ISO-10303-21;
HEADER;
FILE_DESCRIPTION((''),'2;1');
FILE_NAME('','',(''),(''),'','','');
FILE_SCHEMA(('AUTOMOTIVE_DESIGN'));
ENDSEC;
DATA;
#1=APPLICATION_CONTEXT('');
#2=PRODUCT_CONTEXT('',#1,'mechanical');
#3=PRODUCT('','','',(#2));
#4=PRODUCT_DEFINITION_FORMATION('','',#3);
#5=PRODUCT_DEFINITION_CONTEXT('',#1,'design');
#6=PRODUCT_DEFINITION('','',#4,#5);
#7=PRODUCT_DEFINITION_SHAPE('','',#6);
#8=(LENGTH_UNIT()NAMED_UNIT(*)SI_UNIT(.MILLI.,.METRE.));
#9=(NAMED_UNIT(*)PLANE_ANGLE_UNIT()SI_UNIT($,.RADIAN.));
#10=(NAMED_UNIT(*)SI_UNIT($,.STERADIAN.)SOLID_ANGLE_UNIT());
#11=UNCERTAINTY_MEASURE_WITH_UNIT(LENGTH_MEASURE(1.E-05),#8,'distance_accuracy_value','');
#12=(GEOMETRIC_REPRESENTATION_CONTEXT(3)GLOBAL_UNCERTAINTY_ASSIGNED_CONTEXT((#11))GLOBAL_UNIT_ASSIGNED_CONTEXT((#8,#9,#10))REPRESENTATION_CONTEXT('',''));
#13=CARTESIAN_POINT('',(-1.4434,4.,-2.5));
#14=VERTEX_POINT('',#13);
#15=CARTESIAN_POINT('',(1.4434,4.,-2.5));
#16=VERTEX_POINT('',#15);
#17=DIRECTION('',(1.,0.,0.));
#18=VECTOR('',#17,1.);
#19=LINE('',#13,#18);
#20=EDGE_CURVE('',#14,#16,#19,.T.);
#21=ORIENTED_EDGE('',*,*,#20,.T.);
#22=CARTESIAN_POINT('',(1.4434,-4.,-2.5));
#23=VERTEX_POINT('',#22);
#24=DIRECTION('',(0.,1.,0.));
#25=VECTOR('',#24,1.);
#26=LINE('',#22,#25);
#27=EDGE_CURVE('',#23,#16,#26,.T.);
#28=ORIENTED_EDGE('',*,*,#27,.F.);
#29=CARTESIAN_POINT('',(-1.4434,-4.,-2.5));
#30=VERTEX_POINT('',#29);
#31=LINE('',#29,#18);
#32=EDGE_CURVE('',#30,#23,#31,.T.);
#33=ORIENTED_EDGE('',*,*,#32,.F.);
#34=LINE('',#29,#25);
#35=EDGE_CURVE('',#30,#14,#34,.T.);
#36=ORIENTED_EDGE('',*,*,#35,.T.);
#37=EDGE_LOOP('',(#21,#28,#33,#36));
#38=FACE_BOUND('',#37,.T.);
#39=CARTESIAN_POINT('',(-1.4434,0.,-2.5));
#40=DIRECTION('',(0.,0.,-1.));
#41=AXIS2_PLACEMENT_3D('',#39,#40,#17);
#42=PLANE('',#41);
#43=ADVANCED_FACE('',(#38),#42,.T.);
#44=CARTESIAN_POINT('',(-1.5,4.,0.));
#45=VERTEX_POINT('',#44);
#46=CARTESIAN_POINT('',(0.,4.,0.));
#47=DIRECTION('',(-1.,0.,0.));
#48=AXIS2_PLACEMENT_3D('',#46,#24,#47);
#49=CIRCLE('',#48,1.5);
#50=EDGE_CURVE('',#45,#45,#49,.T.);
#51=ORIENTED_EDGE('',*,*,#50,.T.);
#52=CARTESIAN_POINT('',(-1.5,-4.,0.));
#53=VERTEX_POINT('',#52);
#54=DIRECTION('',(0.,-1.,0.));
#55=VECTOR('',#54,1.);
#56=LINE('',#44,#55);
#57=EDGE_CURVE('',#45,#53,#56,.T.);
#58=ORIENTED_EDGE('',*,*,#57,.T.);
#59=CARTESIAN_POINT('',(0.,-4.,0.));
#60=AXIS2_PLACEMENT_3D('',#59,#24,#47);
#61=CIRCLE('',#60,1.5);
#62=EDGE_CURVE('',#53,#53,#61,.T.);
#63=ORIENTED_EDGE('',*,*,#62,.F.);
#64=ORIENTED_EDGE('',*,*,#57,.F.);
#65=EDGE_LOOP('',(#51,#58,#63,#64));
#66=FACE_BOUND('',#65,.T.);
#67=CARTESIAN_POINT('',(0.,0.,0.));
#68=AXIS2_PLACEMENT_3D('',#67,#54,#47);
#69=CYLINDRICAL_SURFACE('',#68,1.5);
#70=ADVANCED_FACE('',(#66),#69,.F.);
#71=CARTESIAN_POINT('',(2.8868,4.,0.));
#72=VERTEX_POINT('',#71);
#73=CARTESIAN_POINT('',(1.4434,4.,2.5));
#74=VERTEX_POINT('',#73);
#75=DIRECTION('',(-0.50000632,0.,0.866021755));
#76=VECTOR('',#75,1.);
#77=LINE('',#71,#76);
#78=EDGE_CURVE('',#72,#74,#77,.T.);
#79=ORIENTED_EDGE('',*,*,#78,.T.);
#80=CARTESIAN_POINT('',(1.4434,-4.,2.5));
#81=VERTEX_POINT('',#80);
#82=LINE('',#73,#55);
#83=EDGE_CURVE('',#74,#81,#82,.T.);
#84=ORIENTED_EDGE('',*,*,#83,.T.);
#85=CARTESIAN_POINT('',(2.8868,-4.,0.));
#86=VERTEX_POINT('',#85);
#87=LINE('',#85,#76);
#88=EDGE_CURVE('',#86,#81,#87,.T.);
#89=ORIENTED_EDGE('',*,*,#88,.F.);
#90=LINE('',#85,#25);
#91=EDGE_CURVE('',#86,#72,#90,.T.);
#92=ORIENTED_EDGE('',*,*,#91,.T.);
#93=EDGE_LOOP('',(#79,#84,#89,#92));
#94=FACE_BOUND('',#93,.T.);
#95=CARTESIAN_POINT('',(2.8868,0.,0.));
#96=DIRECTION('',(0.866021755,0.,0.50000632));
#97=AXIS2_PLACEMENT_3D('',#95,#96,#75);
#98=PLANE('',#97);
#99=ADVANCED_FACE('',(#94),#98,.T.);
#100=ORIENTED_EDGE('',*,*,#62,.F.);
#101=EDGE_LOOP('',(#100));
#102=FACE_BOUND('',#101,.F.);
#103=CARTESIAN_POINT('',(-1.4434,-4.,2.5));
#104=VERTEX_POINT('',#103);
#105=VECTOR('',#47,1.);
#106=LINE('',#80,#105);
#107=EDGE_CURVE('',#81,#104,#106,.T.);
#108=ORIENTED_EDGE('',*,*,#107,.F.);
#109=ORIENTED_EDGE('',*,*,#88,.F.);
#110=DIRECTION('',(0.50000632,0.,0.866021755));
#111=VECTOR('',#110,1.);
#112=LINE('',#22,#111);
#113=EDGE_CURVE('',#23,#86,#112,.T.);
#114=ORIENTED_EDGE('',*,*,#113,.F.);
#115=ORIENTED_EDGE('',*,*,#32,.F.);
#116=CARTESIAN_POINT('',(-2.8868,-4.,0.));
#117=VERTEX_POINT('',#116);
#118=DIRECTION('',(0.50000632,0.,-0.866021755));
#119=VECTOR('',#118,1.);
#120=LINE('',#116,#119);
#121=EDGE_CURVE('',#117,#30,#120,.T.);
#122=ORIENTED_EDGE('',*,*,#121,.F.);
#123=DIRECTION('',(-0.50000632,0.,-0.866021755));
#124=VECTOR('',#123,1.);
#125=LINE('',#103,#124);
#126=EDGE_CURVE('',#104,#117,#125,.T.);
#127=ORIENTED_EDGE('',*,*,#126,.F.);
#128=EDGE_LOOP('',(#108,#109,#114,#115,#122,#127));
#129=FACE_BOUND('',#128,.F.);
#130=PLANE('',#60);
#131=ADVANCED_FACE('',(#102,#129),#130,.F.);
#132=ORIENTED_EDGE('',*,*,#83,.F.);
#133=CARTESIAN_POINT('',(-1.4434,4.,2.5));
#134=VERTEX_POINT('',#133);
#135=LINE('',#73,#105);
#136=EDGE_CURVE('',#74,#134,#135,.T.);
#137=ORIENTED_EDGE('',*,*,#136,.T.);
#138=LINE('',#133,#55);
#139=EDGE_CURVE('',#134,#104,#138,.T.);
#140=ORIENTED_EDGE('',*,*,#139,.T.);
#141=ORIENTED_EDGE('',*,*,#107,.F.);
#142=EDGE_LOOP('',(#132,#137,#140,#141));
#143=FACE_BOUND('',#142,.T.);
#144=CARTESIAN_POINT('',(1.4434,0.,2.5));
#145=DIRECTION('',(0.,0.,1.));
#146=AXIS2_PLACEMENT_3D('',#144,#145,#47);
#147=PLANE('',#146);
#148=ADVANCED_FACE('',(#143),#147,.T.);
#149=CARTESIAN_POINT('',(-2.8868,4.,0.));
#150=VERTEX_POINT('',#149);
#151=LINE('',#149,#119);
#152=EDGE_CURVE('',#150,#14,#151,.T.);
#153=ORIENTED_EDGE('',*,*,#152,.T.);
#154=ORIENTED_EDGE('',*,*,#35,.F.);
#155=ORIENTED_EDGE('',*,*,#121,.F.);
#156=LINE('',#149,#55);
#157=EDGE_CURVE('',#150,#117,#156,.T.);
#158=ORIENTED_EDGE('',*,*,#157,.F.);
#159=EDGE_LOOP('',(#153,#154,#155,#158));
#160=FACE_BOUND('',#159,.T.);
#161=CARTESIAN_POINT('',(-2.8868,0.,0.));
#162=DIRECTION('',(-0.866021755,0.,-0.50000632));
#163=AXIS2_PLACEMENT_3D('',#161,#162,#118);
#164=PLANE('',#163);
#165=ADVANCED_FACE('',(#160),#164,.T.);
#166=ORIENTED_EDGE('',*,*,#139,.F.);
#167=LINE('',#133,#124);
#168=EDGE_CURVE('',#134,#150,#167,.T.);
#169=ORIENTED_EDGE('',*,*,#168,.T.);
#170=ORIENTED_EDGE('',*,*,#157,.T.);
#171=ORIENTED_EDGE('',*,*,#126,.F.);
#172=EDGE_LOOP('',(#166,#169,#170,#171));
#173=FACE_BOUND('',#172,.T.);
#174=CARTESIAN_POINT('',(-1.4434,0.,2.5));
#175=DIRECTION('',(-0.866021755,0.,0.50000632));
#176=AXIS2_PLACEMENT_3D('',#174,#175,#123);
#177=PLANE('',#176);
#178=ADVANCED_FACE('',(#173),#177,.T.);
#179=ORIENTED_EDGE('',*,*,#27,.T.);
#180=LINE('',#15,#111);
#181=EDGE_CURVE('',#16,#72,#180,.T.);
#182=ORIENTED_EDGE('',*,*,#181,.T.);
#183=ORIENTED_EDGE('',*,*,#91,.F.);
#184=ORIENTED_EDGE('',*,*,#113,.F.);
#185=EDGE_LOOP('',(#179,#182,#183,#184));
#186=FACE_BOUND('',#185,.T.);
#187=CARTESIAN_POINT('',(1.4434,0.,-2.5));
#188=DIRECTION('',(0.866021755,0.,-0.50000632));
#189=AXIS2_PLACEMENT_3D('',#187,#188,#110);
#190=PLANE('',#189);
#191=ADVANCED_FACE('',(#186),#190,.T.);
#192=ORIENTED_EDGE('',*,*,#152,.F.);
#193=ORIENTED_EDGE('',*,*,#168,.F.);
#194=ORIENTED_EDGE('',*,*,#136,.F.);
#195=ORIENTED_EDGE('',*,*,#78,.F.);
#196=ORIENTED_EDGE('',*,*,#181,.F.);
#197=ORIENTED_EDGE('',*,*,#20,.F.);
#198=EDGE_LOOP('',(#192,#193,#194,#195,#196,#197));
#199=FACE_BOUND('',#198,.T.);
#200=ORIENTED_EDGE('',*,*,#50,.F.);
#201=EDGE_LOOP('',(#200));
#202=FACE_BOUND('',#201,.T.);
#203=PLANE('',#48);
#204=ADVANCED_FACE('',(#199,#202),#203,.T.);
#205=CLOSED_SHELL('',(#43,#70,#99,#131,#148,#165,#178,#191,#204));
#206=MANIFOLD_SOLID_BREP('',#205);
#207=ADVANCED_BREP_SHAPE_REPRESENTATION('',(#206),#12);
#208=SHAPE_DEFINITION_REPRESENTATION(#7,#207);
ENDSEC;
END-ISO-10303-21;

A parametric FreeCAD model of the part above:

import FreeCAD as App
import Part
import Sketcher
from FreeCAD import Vector
Q = App.Units.Quantity


def add_polygon(sketch, points):
    """Adds a closed chain of lines whose ends are joined by coincident constraints."""
    first, n = sketch.GeometryCount, len(points)
    for a, b in zip(points, points[1:] + points[:1]):
        sketch.addGeometry(Part.LineSegment(App.Vector(*a, 0), App.Vector(*b, 0)), False)
    for i in range(n):
        sketch.addConstraint(Sketcher.Constraint("Coincident", first + i, 2, first + (i + 1) % n, 1))

doc = App.newDocument("Part")
body = doc.addObject("PartDesign::Body", "Body")

sketch1 = body.newObject("Sketcher::SketchObject", "Sketch")
sketch1.AttachmentSupport = (doc.getObject("XZ_Plane"), [""])
sketch1.MapMode = "FlatFace"
add_polygon(sketch1, [(1.4, 2.5), (2.9, 0), (1.4, -2.5), (-1.4, -2.5), (-2.9, 0), (-1.4, 2.5)])
sketch1.addGeometry(Part.Circle(Vector(0, 0, 0), Vector(0, 0, 1), 1.5), False)
sketch1.addConstraint(Sketcher.Constraint("Horizontal", 2))
sketch1.addConstraint(Sketcher.Constraint("Horizontal", 5))
sketch1.addConstraint(Sketcher.Constraint("Coincident", 6, 3, -1, 1))
sketch1.addConstraint(Sketcher.Constraint("Symmetric", 0, 2, 3, 2, -1, 1))
sketch1.addConstraint(Sketcher.Constraint("Symmetric", 1, 2, 4, 2, -1, 1))
sketch1.addConstraint(Sketcher.Constraint("PointOnObject", 0, 2, -1))
sketch1.addConstraint(Sketcher.Constraint("Parallel", 0, 3))
sketch1.addConstraint(Sketcher.Constraint("Vertical", 2, 2, 4, 2))
sketch1.addConstraint(Sketcher.Constraint("Diameter", 6, Q("3 mm")))
sketch1.addConstraint(Sketcher.Constraint("DistanceY", 2, 2, 4, 2, Q("5 mm")))
sketch1.addConstraint(Sketcher.Constraint("Angle", 0, Q("-59.9996 deg")))
sketch1.addConstraint(Sketcher.Constraint("DistanceX", 2, 2, 2, 1, Q("2.8868 mm")))
pad1 = body.newObject("PartDesign::Pad", "Pad")
pad1.Profile = sketch1
pad1.Length = 8
pad1.Midplane = True

doc.recompute()
